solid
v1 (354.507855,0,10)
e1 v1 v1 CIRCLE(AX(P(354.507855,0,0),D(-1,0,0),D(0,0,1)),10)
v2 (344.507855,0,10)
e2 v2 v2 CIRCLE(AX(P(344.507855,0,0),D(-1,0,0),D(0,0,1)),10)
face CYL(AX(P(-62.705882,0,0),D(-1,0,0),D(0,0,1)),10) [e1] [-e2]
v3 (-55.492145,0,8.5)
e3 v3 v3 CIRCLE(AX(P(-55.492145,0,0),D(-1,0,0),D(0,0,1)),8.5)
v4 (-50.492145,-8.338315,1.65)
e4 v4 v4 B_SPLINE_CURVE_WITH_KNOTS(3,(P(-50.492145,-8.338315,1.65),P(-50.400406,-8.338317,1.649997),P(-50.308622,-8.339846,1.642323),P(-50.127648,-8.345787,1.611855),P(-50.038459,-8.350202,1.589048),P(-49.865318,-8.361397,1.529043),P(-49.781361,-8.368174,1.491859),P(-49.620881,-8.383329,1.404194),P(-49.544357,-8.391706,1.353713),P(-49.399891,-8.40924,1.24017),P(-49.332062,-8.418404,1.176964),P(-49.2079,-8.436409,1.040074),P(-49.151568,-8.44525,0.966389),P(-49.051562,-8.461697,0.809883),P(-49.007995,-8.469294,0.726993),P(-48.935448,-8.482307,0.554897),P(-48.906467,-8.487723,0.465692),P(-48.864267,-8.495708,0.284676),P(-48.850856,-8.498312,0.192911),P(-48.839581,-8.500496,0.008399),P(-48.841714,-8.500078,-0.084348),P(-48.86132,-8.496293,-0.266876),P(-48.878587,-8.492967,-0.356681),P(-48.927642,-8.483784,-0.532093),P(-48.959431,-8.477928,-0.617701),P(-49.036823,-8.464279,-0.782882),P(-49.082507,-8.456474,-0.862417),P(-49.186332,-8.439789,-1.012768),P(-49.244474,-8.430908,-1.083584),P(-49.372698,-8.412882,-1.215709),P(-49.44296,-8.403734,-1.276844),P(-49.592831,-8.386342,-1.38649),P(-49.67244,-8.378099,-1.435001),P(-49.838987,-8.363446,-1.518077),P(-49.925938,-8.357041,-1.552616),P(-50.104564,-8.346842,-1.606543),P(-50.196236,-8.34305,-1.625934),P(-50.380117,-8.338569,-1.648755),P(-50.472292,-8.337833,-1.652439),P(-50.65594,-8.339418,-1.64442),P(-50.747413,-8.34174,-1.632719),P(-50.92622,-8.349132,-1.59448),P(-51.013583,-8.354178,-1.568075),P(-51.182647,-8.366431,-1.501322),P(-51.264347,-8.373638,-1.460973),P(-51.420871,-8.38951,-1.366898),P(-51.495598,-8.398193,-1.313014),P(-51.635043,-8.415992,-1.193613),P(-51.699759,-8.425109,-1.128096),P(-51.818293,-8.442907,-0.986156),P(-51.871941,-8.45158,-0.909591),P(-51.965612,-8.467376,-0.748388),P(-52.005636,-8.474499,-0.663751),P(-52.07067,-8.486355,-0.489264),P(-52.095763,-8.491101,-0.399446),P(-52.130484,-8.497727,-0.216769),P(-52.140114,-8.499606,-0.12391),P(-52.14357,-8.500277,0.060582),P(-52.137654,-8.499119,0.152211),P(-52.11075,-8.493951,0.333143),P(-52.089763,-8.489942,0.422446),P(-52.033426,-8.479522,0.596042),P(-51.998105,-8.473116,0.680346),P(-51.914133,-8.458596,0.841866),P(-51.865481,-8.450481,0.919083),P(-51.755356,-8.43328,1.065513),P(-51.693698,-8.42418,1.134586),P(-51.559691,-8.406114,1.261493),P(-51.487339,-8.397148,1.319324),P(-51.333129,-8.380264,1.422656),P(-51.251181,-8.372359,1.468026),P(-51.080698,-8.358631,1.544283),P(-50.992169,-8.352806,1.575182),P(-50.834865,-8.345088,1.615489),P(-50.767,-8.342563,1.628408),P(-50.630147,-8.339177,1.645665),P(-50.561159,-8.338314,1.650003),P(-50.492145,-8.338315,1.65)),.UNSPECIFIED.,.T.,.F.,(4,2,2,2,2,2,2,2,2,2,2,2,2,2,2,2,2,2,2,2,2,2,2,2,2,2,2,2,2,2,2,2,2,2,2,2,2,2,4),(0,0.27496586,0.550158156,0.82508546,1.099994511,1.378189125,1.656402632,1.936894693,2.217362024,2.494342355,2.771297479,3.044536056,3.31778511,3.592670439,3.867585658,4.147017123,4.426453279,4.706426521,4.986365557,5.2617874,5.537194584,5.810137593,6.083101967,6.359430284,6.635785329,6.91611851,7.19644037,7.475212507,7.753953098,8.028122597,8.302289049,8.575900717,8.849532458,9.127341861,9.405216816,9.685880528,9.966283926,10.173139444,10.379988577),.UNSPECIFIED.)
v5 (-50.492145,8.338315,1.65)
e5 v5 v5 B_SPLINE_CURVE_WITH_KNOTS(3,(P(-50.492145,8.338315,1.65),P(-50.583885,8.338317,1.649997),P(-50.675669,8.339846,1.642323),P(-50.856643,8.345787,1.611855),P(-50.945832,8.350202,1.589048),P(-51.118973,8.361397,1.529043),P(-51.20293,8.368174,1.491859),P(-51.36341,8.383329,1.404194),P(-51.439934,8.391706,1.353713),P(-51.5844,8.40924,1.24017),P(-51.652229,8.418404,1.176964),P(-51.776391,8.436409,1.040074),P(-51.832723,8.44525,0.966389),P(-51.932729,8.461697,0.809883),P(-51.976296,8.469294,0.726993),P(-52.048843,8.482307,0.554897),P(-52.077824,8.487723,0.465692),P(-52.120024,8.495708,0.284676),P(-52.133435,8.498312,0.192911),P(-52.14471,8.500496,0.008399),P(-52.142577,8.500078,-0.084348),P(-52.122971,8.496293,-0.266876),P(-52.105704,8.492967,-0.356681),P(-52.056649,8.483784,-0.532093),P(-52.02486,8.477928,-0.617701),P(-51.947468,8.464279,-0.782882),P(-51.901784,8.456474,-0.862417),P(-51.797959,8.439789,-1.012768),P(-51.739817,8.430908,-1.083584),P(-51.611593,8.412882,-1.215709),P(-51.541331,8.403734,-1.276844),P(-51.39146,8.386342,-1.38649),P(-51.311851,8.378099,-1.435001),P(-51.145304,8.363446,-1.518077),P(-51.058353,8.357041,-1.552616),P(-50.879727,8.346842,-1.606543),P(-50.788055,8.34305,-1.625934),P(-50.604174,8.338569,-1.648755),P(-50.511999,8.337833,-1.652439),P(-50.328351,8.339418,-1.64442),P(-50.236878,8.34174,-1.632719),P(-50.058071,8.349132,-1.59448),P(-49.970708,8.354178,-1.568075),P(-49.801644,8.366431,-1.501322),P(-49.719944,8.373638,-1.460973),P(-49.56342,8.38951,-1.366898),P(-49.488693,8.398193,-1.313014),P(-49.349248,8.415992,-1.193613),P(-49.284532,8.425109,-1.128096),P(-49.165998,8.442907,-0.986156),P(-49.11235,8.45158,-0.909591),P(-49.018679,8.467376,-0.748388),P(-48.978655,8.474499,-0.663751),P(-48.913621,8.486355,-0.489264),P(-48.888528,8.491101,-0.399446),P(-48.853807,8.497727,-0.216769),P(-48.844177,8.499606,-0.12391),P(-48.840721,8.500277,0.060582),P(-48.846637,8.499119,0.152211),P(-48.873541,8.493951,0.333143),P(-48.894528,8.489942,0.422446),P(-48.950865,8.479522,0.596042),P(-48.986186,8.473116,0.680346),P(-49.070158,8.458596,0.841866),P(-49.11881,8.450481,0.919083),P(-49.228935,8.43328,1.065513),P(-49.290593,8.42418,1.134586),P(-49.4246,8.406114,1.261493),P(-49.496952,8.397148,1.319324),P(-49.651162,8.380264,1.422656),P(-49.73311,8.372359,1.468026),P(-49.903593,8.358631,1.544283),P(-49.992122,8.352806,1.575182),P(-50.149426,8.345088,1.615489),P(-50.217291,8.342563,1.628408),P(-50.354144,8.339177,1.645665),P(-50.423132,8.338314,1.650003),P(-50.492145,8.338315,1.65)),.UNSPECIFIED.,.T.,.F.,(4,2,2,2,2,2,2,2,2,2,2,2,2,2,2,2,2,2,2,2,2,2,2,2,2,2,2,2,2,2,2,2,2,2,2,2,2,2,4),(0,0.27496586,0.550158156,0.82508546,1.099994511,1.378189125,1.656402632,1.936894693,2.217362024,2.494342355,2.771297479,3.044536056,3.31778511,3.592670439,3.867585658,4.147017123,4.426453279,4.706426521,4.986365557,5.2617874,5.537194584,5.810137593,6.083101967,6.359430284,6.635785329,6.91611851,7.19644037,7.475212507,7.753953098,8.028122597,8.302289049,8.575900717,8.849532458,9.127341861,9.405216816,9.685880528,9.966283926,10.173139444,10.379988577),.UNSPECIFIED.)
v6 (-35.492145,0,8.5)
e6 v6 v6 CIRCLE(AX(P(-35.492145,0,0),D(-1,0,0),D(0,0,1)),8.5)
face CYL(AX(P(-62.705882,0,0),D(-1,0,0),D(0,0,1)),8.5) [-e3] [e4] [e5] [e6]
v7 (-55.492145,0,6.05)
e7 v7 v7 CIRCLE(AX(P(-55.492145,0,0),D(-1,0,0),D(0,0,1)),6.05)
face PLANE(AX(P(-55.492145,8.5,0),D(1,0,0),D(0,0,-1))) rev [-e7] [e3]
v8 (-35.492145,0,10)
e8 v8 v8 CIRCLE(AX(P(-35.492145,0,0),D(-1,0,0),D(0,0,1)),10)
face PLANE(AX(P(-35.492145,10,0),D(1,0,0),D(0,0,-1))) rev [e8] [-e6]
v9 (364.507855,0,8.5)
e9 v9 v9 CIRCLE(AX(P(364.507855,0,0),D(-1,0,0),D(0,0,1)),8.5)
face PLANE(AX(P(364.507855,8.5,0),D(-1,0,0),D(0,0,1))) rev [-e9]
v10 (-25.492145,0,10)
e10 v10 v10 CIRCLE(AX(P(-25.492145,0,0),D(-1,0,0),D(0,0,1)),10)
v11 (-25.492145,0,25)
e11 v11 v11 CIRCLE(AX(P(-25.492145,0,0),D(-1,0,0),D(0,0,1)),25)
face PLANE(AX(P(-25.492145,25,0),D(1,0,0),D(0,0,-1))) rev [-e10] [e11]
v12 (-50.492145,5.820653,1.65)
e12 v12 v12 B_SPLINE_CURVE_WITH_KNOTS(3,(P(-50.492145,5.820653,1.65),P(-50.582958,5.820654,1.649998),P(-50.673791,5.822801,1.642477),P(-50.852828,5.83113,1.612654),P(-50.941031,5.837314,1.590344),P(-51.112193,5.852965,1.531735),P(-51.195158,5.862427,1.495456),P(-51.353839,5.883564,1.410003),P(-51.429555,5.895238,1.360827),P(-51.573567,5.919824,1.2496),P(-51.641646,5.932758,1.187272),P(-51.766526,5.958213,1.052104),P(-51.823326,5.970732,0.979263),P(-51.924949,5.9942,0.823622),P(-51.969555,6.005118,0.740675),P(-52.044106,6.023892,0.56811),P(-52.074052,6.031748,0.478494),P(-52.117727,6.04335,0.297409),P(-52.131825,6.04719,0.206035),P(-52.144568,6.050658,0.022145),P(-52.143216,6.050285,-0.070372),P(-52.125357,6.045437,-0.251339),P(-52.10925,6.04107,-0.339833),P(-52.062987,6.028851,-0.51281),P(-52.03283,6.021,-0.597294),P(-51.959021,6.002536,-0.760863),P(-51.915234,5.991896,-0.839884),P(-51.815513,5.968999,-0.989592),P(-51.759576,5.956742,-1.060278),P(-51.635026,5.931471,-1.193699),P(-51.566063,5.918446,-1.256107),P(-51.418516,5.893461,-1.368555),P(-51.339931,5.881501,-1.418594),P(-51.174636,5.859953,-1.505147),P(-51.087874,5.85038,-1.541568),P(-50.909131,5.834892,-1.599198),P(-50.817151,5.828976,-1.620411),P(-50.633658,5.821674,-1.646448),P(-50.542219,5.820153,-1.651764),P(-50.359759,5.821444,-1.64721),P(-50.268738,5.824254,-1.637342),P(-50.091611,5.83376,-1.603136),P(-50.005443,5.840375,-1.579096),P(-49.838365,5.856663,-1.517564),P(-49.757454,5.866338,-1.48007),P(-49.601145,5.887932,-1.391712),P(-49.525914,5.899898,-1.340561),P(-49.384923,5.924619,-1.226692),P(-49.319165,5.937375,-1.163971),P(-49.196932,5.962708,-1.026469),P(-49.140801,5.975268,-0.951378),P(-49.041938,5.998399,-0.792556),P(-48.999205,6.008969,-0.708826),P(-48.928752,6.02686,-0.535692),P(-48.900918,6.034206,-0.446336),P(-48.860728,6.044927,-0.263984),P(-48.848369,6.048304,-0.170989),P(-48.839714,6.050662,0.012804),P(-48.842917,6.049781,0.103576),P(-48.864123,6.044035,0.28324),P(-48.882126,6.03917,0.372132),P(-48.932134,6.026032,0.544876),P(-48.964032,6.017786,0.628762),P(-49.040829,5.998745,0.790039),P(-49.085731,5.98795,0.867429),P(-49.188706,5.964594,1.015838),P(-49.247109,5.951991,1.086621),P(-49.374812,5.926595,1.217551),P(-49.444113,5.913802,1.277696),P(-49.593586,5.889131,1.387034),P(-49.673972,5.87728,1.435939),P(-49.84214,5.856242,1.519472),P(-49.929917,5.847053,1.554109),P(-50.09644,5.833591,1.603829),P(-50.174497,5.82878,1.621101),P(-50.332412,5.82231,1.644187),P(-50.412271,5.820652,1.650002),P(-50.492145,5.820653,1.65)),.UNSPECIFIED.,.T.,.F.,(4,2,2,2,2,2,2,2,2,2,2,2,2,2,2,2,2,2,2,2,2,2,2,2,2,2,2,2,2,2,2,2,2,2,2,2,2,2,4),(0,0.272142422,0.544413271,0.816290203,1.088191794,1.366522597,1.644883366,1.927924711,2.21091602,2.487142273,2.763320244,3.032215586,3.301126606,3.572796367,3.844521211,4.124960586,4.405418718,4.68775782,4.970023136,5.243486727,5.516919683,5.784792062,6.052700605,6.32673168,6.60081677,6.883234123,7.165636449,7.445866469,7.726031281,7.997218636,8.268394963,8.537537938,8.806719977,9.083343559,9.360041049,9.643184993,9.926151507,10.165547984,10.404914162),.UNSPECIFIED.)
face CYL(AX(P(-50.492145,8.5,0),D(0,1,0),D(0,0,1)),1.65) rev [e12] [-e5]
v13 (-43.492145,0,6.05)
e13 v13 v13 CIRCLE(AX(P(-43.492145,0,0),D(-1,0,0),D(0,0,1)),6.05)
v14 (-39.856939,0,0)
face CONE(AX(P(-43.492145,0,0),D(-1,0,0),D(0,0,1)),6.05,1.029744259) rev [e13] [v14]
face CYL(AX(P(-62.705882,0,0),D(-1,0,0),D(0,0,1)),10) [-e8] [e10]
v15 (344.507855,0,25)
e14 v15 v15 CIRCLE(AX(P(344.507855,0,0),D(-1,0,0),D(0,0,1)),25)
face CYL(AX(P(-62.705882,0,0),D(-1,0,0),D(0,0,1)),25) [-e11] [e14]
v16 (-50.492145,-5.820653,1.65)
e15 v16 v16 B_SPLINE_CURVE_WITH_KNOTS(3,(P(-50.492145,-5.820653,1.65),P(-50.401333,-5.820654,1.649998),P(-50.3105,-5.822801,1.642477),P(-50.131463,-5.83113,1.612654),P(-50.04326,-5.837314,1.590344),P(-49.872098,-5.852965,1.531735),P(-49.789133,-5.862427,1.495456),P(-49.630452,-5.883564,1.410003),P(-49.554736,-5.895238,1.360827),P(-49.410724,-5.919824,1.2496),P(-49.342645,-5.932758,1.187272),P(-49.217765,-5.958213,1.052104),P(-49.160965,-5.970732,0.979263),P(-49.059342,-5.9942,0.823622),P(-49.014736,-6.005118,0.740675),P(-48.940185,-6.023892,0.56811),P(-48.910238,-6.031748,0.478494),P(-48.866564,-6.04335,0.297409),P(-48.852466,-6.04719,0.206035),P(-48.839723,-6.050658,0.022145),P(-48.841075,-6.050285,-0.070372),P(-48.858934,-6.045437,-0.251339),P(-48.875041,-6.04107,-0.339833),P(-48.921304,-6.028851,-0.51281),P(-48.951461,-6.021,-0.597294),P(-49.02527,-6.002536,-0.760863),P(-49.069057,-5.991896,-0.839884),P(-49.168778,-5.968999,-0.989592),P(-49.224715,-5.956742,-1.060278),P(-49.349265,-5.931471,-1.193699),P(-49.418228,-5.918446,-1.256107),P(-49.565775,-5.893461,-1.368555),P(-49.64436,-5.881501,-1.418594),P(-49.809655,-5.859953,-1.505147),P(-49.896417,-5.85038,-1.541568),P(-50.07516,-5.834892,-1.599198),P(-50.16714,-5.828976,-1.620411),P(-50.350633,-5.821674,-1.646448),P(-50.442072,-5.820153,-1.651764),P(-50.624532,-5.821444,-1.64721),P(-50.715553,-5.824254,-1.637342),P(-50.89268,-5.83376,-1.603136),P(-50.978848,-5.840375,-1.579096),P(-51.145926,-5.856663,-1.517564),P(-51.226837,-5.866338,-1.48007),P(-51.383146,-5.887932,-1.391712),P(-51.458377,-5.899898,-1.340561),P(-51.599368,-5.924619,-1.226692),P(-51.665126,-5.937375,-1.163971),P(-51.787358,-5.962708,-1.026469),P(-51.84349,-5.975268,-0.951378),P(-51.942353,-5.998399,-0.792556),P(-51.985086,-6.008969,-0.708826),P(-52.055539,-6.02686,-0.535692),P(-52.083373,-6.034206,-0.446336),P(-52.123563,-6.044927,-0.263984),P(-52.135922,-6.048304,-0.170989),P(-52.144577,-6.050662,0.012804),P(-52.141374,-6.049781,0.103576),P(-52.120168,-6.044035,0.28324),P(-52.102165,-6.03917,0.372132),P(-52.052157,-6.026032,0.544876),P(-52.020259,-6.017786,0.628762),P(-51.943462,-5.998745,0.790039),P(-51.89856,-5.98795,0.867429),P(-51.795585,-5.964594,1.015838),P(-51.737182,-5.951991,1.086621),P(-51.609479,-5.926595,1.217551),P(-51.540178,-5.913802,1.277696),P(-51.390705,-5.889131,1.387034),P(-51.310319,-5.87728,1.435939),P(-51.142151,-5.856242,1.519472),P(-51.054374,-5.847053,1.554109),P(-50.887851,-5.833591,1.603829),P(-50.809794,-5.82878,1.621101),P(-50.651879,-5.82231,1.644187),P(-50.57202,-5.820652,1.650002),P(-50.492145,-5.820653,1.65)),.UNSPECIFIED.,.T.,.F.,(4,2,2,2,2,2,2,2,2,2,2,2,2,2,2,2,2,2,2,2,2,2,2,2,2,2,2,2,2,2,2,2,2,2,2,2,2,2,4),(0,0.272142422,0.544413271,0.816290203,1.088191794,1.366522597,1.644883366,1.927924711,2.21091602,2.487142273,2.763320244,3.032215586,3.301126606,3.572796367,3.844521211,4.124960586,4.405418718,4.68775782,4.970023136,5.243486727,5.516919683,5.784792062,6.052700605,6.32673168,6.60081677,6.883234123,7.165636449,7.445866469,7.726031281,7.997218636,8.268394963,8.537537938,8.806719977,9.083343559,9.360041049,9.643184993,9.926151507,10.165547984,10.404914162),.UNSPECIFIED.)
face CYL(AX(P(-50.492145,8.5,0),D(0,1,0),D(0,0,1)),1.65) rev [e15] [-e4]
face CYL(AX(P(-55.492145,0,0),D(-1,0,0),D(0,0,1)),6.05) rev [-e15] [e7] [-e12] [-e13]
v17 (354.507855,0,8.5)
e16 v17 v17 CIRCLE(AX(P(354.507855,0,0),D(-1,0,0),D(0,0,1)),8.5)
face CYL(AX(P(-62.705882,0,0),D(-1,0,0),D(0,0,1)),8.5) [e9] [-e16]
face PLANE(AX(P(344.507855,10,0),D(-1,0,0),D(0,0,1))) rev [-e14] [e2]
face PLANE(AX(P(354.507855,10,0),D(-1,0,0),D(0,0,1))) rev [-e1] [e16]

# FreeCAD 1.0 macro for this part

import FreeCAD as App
import Part
import Sketcher

V = App.Vector
Q = App.Units.Quantity


def add_polygon(sketch, points):
    """Adds a closed chain of lines whose ends are joined by coincident constraints."""
    first, n = sketch.GeometryCount, len(points)
    for a, b in zip(points, points[1:] + points[:1]):
        sketch.addGeometry(Part.LineSegment(App.Vector(*a, 0), App.Vector(*b, 0)), False)
    for i in range(n):
        sketch.addConstraint(Sketcher.Constraint("Coincident", first + i, 2, first + (i + 1) % n, 1))

doc = App.newDocument("Part")
body = doc.addObject("PartDesign::Body", "Body")

sketch1 = body.newObject("Sketcher::SketchObject", "Sketch")
sketch1.AttachmentSupport = (doc.getObject("XY_Plane"), [""])
sketch1.MapMode = "FlatFace"
add_polygon(sketch1, [(354.5, 10), (344.5, 10), (344.5, 25), (-25.5, 25), (-25.5, 10), (-35.5, 10), (-35.5, 8.5), (-55.5, 8.5), (-55.5, 0), (364.5, 0), (364.5, 8.5), (354.5, 8.5)])
sketch1.addConstraint([
    Sketcher.Constraint("Horizontal", 0),
    Sketcher.Constraint("Vertical", 1),
    Sketcher.Constraint("Horizontal", 2),
    Sketcher.Constraint("Vertical", 3),
    Sketcher.Constraint("Horizontal", 4),
    Sketcher.Constraint("Vertical", 5),
    Sketcher.Constraint("Horizontal", 6),
    Sketcher.Constraint("Vertical", 7),
    Sketcher.Constraint("Horizontal", 8),
    Sketcher.Constraint("Vertical", 9),
    Sketcher.Constraint("Horizontal", 10),
    Sketcher.Constraint("Vertical", 11),
    Sketcher.Constraint("PointOnObject", 7, 2, -1),
    Sketcher.Constraint("Horizontal", 0, 2, 3, 2),
    Sketcher.Constraint("Horizontal", 6, 2, 9, 2),
    Sketcher.Constraint("Equal", 0, 4),
    Sketcher.Constraint("Equal", 4, 10),
    Sketcher.Constraint("DistanceX", 0, 2, 0, 1, Q("10 mm")),
    Sketcher.Constraint("DistanceX", 2, 2, 2, 1, Q("370 mm")),
    Sketcher.Constraint("DistanceX", 6, 2, 6, 1, Q("20 mm")),
    Sketcher.Constraint("DistanceY", 1, 1, 1, 2, Q("15 mm")),
    Sketcher.Constraint("DistanceY", 5, 2, 5, 1, Q("1.5 mm")),
    Sketcher.Constraint("DistanceY", 7, 2, 7, 1, Q("8.5 mm")),
    Sketcher.Constraint("DistanceX", -1, 1, 0, 2, Q("344.507855 mm")),
])
revolution = body.newObject("PartDesign::Revolution", "Revolution")
revolution.Profile = sketch1
revolution.ReferenceAxis = (sketch1, ["H_Axis"])
revolution.Angle = 360

sketch2 = body.newObject("Sketcher::SketchObject", "Sketch001")
sketch2.AttachmentSupport = (doc.getObject("XZ_Plane"), [""])
sketch2.MapMode = "FlatFace"
sketch2.AttachmentOffset = App.Placement(V(0, 0, -8.5), App.Rotation())
sketch2.addGeometry(Part.Circle(V(-50.5, 0, 0), V(0, 0, 1), 1.6), False)
sketch2.addConstraint([
    Sketcher.Constraint("PointOnObject", 0, 3, -1),
    Sketcher.Constraint("Diameter", 0, Q("3.3 mm")),
    Sketcher.Constraint("DistanceX", 0, 3, -1, 1, Q("50.492145 mm")),
])
doc.recompute()
hole = body.newObject("PartDesign::Hole", "Hole")
hole.Profile = sketch2
hole.ThreadType = "None"
hole.Diameter = 3.3
hole.DepthType = "Dimension"
hole.Depth = 20
hole.DrillPoint = "Angled"
hole.DrillPointAngle = 118
hole.Reversed = True

sketch3 = body.newObject("Sketcher::SketchObject", "Sketch002")
sketch3.AttachmentSupport = (doc.getObject("YZ_Plane"), [""])
sketch3.MapMode = "FlatFace"
sketch3.AttachmentOffset = App.Placement(V(0, 0, -55.492145), App.Rotation())
sketch3.addGeometry(Part.Circle(V(0, 0, 0), V(0, 0, 1), 6), False)
sketch3.addConstraint([
    Sketcher.Constraint("Coincident", 0, 3, -1, 1),
    Sketcher.Constraint("Diameter", 0, Q("12.1 mm")),
])
doc.recompute()
hole2 = body.newObject("PartDesign::Hole", "Hole001")
hole2.Profile = sketch3
hole2.ThreadType = "None"
hole2.Diameter = 12.1
hole2.DepthType = "Dimension"
hole2.Depth = 12
hole2.DrillPoint = "Angled"
hole2.DrillPointAngle = 118
hole2.Reversed = True

doc.recompute()
